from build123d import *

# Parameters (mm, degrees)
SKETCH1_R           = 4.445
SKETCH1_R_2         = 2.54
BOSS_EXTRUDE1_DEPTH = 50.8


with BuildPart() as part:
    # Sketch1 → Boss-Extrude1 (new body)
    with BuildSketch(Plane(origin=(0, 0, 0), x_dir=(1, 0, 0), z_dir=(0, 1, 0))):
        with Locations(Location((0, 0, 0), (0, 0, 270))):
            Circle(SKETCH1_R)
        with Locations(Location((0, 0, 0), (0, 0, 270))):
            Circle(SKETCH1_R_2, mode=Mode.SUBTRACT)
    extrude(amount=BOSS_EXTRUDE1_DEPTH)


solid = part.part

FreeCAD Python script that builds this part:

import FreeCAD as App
import Part
import Sketcher

V = App.Vector
Q = App.Units.Quantity

doc = App.newDocument("Part")
body = doc.addObject("PartDesign::Body", "Body")

# Sketch on XZ plane
sketch1 = body.newObject("Sketcher::SketchObject", "Sketch")
sketch1.AttachmentSupport = (doc.getObject("XZ_Plane"), [""])
sketch1.MapMode = "FlatFace"
sketch1.addGeometry([
    Part.Circle(V(0, 0, 0), V(0, 0, 1), 4.445),
    Part.Circle(V(0, 0, 0), V(0, 0, 1), 2.54),
], False)
sketch1.addConstraint([
    Sketcher.Constraint("Coincident", 0, 3, -1, 1),
    Sketcher.Constraint("Coincident", 1, 3, -1, 1),
    Sketcher.Constraint("Diameter", 1, Q("0.2 in")),
    Sketcher.Constraint("Diameter", 0, Q("0.35 in")),
])
pad1 = body.newObject("PartDesign::Pad", "Pad")
pad1.Profile = sketch1
pad1.Length = Q("2 in")
pad1.Reversed = True

doc.recompute()
